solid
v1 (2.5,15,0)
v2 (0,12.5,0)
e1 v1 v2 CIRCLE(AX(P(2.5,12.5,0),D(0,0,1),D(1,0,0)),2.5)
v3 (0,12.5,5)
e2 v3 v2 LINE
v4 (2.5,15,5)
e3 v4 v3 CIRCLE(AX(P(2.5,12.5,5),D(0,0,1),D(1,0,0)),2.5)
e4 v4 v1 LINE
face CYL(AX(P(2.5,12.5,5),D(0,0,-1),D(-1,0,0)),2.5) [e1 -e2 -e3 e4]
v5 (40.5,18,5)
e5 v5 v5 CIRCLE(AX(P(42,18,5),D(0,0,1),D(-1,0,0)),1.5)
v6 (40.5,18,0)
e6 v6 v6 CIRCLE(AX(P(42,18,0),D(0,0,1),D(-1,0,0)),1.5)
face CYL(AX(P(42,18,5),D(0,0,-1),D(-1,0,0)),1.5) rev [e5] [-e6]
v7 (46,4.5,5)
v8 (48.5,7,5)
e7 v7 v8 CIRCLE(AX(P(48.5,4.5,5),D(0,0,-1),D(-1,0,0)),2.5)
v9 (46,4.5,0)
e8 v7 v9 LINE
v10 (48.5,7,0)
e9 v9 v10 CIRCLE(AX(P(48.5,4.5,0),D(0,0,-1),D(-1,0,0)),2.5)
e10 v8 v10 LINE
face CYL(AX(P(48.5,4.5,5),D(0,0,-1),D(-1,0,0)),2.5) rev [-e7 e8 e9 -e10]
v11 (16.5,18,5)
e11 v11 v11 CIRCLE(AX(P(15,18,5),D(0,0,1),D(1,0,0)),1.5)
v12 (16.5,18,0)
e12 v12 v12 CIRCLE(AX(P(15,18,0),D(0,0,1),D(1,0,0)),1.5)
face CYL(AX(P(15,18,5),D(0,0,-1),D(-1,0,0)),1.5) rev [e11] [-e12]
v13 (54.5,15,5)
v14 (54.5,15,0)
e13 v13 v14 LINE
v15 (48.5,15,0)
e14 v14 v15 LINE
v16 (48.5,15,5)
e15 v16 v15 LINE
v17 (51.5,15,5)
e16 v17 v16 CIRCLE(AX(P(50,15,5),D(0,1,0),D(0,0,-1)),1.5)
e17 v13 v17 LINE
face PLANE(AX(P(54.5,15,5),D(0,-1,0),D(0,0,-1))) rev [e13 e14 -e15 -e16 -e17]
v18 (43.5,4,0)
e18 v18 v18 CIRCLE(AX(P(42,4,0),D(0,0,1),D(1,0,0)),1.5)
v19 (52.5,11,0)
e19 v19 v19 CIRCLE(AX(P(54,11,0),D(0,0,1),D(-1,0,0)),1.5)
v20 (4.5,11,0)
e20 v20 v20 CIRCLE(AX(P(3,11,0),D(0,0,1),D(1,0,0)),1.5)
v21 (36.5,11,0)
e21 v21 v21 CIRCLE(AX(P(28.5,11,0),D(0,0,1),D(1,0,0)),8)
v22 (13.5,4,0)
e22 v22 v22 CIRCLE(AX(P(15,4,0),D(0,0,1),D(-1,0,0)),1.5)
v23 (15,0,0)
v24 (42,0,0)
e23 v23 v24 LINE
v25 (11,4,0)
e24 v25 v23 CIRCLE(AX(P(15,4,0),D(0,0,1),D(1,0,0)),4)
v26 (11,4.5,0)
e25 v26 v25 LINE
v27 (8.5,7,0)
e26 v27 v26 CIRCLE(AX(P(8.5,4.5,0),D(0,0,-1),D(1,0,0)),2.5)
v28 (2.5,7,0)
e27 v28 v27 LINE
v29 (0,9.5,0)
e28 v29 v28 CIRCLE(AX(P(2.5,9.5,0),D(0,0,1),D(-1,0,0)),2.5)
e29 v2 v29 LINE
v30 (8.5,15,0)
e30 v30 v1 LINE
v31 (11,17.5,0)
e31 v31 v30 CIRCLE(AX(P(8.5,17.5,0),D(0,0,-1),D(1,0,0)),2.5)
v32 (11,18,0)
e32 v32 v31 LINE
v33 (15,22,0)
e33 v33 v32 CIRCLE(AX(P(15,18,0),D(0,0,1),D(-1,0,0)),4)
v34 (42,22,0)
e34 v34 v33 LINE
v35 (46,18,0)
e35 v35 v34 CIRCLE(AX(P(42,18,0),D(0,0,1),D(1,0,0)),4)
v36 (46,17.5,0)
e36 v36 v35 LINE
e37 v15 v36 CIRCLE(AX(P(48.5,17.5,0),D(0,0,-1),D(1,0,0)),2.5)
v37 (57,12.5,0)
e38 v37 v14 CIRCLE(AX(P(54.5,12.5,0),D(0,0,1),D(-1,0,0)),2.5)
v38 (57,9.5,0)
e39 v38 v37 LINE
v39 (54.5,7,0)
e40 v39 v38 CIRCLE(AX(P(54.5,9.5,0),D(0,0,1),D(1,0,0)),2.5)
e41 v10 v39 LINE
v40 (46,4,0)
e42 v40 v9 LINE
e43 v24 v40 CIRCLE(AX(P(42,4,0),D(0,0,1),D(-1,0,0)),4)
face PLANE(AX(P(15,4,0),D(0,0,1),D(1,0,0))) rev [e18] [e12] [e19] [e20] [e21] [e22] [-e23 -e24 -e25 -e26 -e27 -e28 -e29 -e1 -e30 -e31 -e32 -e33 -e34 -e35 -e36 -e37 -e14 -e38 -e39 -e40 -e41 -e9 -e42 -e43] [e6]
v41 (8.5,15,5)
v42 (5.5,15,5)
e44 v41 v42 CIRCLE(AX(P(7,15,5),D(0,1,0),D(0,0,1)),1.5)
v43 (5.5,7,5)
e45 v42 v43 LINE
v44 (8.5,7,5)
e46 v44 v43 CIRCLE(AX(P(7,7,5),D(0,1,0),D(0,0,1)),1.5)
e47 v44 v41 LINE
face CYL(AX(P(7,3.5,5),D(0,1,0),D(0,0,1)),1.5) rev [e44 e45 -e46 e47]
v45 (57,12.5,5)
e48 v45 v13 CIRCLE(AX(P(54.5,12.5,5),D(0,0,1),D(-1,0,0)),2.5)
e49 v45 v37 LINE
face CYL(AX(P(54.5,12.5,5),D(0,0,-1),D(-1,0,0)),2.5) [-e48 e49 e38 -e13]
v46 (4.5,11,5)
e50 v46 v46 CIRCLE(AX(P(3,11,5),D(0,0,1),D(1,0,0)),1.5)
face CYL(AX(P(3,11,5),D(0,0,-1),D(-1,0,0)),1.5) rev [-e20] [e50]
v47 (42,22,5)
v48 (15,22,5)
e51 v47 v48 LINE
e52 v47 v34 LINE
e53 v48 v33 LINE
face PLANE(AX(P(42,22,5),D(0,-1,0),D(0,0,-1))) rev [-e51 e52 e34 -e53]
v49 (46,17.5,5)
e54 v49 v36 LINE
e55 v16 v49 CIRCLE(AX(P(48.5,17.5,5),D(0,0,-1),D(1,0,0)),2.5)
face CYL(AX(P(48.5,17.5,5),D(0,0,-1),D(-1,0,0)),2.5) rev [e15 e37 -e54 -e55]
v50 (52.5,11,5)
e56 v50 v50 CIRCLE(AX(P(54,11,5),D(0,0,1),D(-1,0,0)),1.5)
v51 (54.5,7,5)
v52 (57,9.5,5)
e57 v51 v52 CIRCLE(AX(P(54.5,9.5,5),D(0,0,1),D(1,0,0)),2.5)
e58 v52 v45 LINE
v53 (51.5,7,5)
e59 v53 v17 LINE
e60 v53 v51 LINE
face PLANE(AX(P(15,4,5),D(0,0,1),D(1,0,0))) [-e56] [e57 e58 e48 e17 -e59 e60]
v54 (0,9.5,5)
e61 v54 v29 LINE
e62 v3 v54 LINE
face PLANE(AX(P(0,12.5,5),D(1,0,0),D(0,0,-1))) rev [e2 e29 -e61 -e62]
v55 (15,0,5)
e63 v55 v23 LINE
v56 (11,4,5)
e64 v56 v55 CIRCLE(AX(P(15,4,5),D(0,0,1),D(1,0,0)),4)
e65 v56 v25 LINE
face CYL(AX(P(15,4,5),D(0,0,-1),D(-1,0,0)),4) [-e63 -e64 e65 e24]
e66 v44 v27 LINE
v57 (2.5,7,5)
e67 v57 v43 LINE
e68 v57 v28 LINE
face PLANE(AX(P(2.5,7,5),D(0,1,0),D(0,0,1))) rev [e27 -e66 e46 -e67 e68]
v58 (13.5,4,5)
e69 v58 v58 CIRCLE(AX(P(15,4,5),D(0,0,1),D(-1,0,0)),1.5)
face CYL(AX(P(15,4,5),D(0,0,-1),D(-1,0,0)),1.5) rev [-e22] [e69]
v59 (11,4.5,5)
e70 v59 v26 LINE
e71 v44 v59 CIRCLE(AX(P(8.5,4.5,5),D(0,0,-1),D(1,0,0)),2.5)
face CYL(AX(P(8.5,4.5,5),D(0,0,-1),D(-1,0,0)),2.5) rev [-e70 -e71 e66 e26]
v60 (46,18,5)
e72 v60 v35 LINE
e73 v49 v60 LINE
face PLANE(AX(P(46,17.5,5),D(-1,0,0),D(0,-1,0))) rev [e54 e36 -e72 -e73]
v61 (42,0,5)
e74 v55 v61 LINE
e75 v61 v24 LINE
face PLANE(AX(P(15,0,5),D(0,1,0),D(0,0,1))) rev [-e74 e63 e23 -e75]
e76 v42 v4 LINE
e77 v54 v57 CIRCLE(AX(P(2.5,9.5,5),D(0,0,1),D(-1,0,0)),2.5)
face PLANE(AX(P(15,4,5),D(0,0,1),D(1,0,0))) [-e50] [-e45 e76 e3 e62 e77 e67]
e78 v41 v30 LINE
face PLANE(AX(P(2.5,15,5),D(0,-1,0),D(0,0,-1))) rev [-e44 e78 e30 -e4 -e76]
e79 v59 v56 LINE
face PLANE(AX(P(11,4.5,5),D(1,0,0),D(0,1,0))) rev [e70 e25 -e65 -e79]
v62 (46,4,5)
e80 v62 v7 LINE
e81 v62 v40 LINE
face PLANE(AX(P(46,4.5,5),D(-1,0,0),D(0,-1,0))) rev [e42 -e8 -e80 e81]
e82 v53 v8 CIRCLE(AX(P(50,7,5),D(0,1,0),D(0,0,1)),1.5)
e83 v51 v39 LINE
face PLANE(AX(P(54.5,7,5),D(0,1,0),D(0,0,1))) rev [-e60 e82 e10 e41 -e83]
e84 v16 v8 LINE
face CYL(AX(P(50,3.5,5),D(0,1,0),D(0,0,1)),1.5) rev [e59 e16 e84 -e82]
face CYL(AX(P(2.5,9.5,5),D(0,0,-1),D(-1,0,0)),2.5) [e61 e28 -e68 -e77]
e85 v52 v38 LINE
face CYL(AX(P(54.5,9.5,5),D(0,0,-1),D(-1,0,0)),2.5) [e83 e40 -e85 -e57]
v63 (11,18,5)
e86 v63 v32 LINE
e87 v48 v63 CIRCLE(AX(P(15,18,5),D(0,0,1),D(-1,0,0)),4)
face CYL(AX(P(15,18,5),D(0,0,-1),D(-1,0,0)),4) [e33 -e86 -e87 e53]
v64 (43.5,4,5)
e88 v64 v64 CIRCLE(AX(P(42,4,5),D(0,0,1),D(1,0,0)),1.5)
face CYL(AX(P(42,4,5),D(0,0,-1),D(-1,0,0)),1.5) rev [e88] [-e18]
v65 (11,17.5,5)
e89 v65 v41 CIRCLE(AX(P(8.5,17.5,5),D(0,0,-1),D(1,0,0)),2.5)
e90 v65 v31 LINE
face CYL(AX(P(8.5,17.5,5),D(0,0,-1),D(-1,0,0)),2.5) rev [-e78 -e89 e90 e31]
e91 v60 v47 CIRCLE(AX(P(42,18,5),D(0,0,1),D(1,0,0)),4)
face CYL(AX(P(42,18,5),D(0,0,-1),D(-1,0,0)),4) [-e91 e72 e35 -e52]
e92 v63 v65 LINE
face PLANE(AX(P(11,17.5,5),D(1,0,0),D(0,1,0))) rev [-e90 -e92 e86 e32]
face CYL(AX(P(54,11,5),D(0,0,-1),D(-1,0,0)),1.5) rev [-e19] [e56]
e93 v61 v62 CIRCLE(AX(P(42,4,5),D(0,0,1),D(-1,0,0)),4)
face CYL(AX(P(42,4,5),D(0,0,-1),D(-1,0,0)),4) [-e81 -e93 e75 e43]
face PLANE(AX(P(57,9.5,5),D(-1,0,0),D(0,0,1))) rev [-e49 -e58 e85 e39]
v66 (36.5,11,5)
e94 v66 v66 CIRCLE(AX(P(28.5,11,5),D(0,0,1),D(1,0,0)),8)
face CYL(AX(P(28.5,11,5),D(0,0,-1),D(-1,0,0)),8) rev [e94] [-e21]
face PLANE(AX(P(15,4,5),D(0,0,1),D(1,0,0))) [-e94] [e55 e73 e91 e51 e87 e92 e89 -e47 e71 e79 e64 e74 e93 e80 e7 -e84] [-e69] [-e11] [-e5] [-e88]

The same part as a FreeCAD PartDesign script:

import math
import FreeCAD as App
import Part
import Sketcher

doc = App.newDocument("Part")
body = doc.addObject("PartDesign::Body", "Body")

sketch1 = body.newObject("Sketcher::SketchObject", "Sketch")
sketch1.AttachmentSupport = (doc.getObject("XY_Plane"), [""])
sketch1.MapMode = "FlatFace"
sketch1.addGeometry(Part.LineSegment(App.Vector(8.5, 15, 0), App.Vector(2.5, 15, 0)), False)
sketch1.addGeometry(Part.ArcOfCircle(Part.Circle(App.Vector(2.5, 12.5, 0), App.Vector(0, 0, 1), 2.5), math.radians(90), math.radians(180)), False)
sketch1.addGeometry(Part.LineSegment(App.Vector(0, 12.5, 0), App.Vector(0, 9.5, 0)), False)
sketch1.addGeometry(Part.ArcOfCircle(Part.Circle(App.Vector(2.5, 9.5, 0), App.Vector(0, 0, 1), 2.5), math.radians(180), math.radians(270)), False)
sketch1.addGeometry(Part.LineSegment(App.Vector(2.5, 7, 0), App.Vector(8.5, 7, 0)), False)
sketch1.addGeometry(Part.ArcOfCircle(Part.Circle(App.Vector(8.5, 4.5, 0), App.Vector(0, 0, 1), 2.5), math.radians(0), math.radians(90)), False)
sketch1.addGeometry(Part.LineSegment(App.Vector(11, 4.5, 0), App.Vector(11, 4, 0)), False)
sketch1.addGeometry(Part.ArcOfCircle(Part.Circle(App.Vector(15, 4, 0), App.Vector(0, 0, 1), 4), math.radians(180), math.radians(270)), False)
sketch1.addGeometry(Part.LineSegment(App.Vector(15, 0, 0), App.Vector(42, 0, 0)), False)
sketch1.addGeometry(Part.ArcOfCircle(Part.Circle(App.Vector(42, 4, 0), App.Vector(0, 0, 1), 4), math.radians(-90), math.radians(0)), False)
sketch1.addGeometry(Part.LineSegment(App.Vector(46, 4, 0), App.Vector(46, 4.5, 0)), False)
sketch1.addGeometry(Part.ArcOfCircle(Part.Circle(App.Vector(48.5, 4.5, 0), App.Vector(0, 0, 1), 2.5), math.radians(90), math.radians(180)), False)
sketch1.addGeometry(Part.LineSegment(App.Vector(48.5, 7, 0), App.Vector(54.5, 7, 0)), False)
sketch1.addGeometry(Part.ArcOfCircle(Part.Circle(App.Vector(54.5, 9.5, 0), App.Vector(0, 0, 1), 2.5), math.radians(-90), math.radians(0)), False)
sketch1.addGeometry(Part.LineSegment(App.Vector(57, 9.5, 0), App.Vector(57, 12.5, 0)), False)
sketch1.addGeometry(Part.ArcOfCircle(Part.Circle(App.Vector(54.5, 12.5, 0), App.Vector(0, 0, 1), 2.5), math.radians(0), math.radians(90)), False)
sketch1.addGeometry(Part.LineSegment(App.Vector(54.5, 15, 0), App.Vector(48.5, 15, 0)), False)
sketch1.addGeometry(Part.ArcOfCircle(Part.Circle(App.Vector(48.5, 17.5, 0), App.Vector(0, 0, 1), 2.5), math.radians(180), math.radians(270)), False)
sketch1.addGeometry(Part.LineSegment(App.Vector(46, 17.5, 0), App.Vector(46, 18, 0)), False)
sketch1.addGeometry(Part.ArcOfCircle(Part.Circle(App.Vector(42, 18, 0), App.Vector(0, 0, 1), 4), math.radians(0), math.radians(90)), False)
sketch1.addGeometry(Part.LineSegment(App.Vector(42, 22, 0), App.Vector(15, 22, 0)), False)
sketch1.addGeometry(Part.ArcOfCircle(Part.Circle(App.Vector(15, 18, 0), App.Vector(0, 0, 1), 4), math.radians(90), math.radians(180)), False)
sketch1.addGeometry(Part.LineSegment(App.Vector(11, 18, 0), App.Vector(11, 17.5, 0)), False)
sketch1.addGeometry(Part.ArcOfCircle(Part.Circle(App.Vector(8.5, 17.5, 0), App.Vector(0, 0, 1), 2.5), math.radians(-90), math.radians(0)), False)
sketch1.addGeometry(Part.Circle(App.Vector(42, 4, 0), App.Vector(0, 0, 1), 1.5), False)
sketch1.addGeometry(Part.Circle(App.Vector(15, 4, 0), App.Vector(0, 0, 1), 1.5), False)
sketch1.addGeometry(Part.Circle(App.Vector(54, 11, 0), App.Vector(0, 0, 1), 1.5), False)
sketch1.addGeometry(Part.Circle(App.Vector(42, 18, 0), App.Vector(0, 0, 1), 1.5), False)
sketch1.addGeometry(Part.Circle(App.Vector(28.5, 11, 0), App.Vector(0, 0, 1), 8), False)
sketch1.addGeometry(Part.Circle(App.Vector(3, 11, 0), App.Vector(0, 0, 1), 1.5), False)
sketch1.addGeometry(Part.Circle(App.Vector(15, 18, 0), App.Vector(0, 0, 1), 1.5), False)
sketch1.addConstraint(Sketcher.Constraint("Tangent", 0, 2, 1, 1))
sketch1.addConstraint(Sketcher.Constraint("Tangent", 1, 2, 2, 1))
sketch1.addConstraint(Sketcher.Constraint("Tangent", 2, 2, 3, 1))
sketch1.addConstraint(Sketcher.Constraint("Tangent", 3, 2, 4, 1))
sketch1.addConstraint(Sketcher.Constraint("Tangent", 4, 2, 5, 2))
sketch1.addConstraint(Sketcher.Constraint("Tangent", 5, 1, 6, 1))
sketch1.addConstraint(Sketcher.Constraint("Tangent", 6, 2, 7, 1))
sketch1.addConstraint(Sketcher.Constraint("Tangent", 7, 2, 8, 1))
sketch1.addConstraint(Sketcher.Constraint("Tangent", 8, 2, 9, 1))
sketch1.addConstraint(Sketcher.Constraint("Tangent", 9, 2, 10, 1))
sketch1.addConstraint(Sketcher.Constraint("Tangent", 10, 2, 11, 2))
sketch1.addConstraint(Sketcher.Constraint("Tangent", 11, 1, 12, 1))
sketch1.addConstraint(Sketcher.Constraint("Tangent", 12, 2, 13, 1))
sketch1.addConstraint(Sketcher.Constraint("Tangent", 13, 2, 14, 1))
sketch1.addConstraint(Sketcher.Constraint("Tangent", 14, 2, 15, 1))
sketch1.addConstraint(Sketcher.Constraint("Tangent", 15, 2, 16, 1))
sketch1.addConstraint(Sketcher.Constraint("Tangent", 16, 2, 17, 2))
sketch1.addConstraint(Sketcher.Constraint("Tangent", 17, 1, 18, 1))
sketch1.addConstraint(Sketcher.Constraint("Tangent", 18, 2, 19, 1))
sketch1.addConstraint(Sketcher.Constraint("Tangent", 19, 2, 20, 1))
sketch1.addConstraint(Sketcher.Constraint("Tangent", 20, 2, 21, 1))
sketch1.addConstraint(Sketcher.Constraint("Tangent", 21, 2, 22, 1))
sketch1.addConstraint(Sketcher.Constraint("Tangent", 22, 2, 23, 2))
sketch1.addConstraint(Sketcher.Constraint("Tangent", 23, 1, 0, 1))
sketch1.addConstraint(Sketcher.Constraint("Horizontal", 0))
sketch1.addConstraint(Sketcher.Constraint("Vertical", 2))
sketch1.addConstraint(Sketcher.Constraint("Horizontal", 4))
sketch1.addConstraint(Sketcher.Constraint("Vertical", 6))
sketch1.addConstraint(Sketcher.Constraint("Horizontal", 8))
sketch1.addConstraint(Sketcher.Constraint("Vertical", 10))
sketch1.addConstraint(Sketcher.Constraint("Horizontal", 12))
sketch1.addConstraint(Sketcher.Constraint("Vertical", 14))
sketch1.addConstraint(Sketcher.Constraint("Horizontal", 16))
sketch1.addConstraint(Sketcher.Constraint("Vertical", 18))
sketch1.addConstraint(Sketcher.Constraint("Horizontal", 20))
sketch1.addConstraint(Sketcher.Constraint("Vertical", 22))
sketch1.addConstraint(Sketcher.Constraint("Coincident", 24, 3, 9, 3))
sketch1.addConstraint(Sketcher.Constraint("Coincident", 25, 3, 7, 3))
sketch1.addConstraint(Sketcher.Constraint("Coincident", 27, 3, 19, 3))
sketch1.addConstraint(Sketcher.Constraint("Coincident", 30, 3, 21, 3))
sketch1.addConstraint(Sketcher.Constraint("Equal", 1, 3))
sketch1.addConstraint(Sketcher.Constraint("Equal", 3, 5))
sketch1.addConstraint(Sketcher.Constraint("Equal", 7, 9))
sketch1.addConstraint(Sketcher.Constraint("Equal", 5, 11))
sketch1.addConstraint(Sketcher.Constraint("Equal", 11, 13))
sketch1.addConstraint(Sketcher.Constraint("Equal", 13, 15))
sketch1.addConstraint(Sketcher.Constraint("Equal", 15, 17))
sketch1.addConstraint(Sketcher.Constraint("Equal", 9, 19))
sketch1.addConstraint(Sketcher.Constraint("Equal", 19, 21))
sketch1.addConstraint(Sketcher.Constraint("Equal", 17, 23))
sketch1.addConstraint(Sketcher.Constraint("Equal", 24, 25))
sketch1.addConstraint(Sketcher.Constraint("Equal", 25, 26))
sketch1.addConstraint(Sketcher.Constraint("Equal", 26, 27))
sketch1.addConstraint(Sketcher.Constraint("Equal", 27, 29))
sketch1.addConstraint(Sketcher.Constraint("Equal", 29, 30))
sketch1.addConstraint(Sketcher.Constraint("PointOnObject", 1, 2, -2))
sketch1.addConstraint(Sketcher.Constraint("PointOnObject", 7, 2, -1))
sketch1.addConstraint(Sketcher.Constraint("Horizontal", 5, 3, 11, 3))
sketch1.addConstraint(Sketcher.Constraint("Horizontal", 1, 3, 15, 3))
sketch1.addConstraint(Sketcher.Constraint("Horizontal", 26, 3, 28, 3))
sketch1.addConstraint(Sketcher.Constraint("Horizontal", 28, 3, 29, 3))
sketch1.addConstraint(Sketcher.Constraint("Vertical", 11, 3, 17, 3))
sketch1.addConstraint(Sketcher.Constraint("Vertical", 7, 3, 21, 3))
sketch1.addConstraint(Sketcher.Constraint("Equal", 4, 12))
sketch1.addConstraint(Sketcher.Constraint("Equal", 10, 18))
sketch1.addConstraint(Sketcher.Constraint("Diameter", 24, 3.0))
sketch1.addConstraint(Sketcher.Constraint("Diameter", 28, 16.0))
sketch1.addConstraint(Sketcher.Constraint("Radius", 7, 4.0))
sketch1.addConstraint(Sketcher.Constraint("Radius", 1, 2.5))
sketch1.addConstraint(Sketcher.Constraint("DistanceX", 0, 2, 0, 1, 6.0))
sketch1.addConstraint(Sketcher.Constraint("DistanceX", 8, 1, 8, 2, 27.0))
sketch1.addConstraint(Sketcher.Constraint("DistanceY", 2, 2, 2, 1, 3.0))
sketch1.addConstraint(Sketcher.Constraint("DistanceY", 6, 2, 6, 1, 0.5))
sketch1.addConstraint(Sketcher.Constraint("DistanceX", -1, 1, 26, 3, 54.0))
sketch1.addConstraint(Sketcher.Constraint("DistanceY", -1, 1, 26, 3, 11.0))
sketch1.addConstraint(Sketcher.Constraint("DistanceX", -1, 1, 29, 3, 3.0))
sketch1.addConstraint(Sketcher.Constraint("DistanceX", -1, 1, 28, 3, 28.5))
pad1 = body.newObject("PartDesign::Pad", "Pad")
pad1.Profile = sketch1
pad1.Length = 5

sketch2 = body.newObject("Sketcher::SketchObject", "Sketch001")
sketch2.AttachmentSupport = (doc.getObject("XZ_Plane"), [""])
sketch2.MapMode = "FlatFace"
sketch2.AttachmentOffset = App.Placement(App.Vector(0, 0, -15), App.Rotation())
sketch2.addGeometry(Part.Circle(App.Vector(7, 5, 0), App.Vector(0, 0, 1), 1.5), False)
sketch2.addGeometry(Part.Circle(App.Vector(50, 5, 0), App.Vector(0, 0, 1), 1.5), False)
sketch2.addConstraint(Sketcher.Constraint("Equal", 0, 1))
sketch2.addConstraint(Sketcher.Constraint("Horizontal", 0, 3, 1, 3))
sketch2.addConstraint(Sketcher.Constraint("Diameter", 0, 3.0))
sketch2.addConstraint(Sketcher.Constraint("DistanceX", -1, 1, 0, 3, 7.0))
sketch2.addConstraint(Sketcher.Constraint("DistanceY", -1, 1, 0, 3, 5.0))
sketch2.addConstraint(Sketcher.Constraint("DistanceX", -1, 1, 1, 3, 50.0))
pocket1 = body.newObject("PartDesign::Pocket", "Pocket")
pocket1.Profile = sketch2
pocket1.Length = 11.5
pocket1.Reversed = True

doc.recompute()
